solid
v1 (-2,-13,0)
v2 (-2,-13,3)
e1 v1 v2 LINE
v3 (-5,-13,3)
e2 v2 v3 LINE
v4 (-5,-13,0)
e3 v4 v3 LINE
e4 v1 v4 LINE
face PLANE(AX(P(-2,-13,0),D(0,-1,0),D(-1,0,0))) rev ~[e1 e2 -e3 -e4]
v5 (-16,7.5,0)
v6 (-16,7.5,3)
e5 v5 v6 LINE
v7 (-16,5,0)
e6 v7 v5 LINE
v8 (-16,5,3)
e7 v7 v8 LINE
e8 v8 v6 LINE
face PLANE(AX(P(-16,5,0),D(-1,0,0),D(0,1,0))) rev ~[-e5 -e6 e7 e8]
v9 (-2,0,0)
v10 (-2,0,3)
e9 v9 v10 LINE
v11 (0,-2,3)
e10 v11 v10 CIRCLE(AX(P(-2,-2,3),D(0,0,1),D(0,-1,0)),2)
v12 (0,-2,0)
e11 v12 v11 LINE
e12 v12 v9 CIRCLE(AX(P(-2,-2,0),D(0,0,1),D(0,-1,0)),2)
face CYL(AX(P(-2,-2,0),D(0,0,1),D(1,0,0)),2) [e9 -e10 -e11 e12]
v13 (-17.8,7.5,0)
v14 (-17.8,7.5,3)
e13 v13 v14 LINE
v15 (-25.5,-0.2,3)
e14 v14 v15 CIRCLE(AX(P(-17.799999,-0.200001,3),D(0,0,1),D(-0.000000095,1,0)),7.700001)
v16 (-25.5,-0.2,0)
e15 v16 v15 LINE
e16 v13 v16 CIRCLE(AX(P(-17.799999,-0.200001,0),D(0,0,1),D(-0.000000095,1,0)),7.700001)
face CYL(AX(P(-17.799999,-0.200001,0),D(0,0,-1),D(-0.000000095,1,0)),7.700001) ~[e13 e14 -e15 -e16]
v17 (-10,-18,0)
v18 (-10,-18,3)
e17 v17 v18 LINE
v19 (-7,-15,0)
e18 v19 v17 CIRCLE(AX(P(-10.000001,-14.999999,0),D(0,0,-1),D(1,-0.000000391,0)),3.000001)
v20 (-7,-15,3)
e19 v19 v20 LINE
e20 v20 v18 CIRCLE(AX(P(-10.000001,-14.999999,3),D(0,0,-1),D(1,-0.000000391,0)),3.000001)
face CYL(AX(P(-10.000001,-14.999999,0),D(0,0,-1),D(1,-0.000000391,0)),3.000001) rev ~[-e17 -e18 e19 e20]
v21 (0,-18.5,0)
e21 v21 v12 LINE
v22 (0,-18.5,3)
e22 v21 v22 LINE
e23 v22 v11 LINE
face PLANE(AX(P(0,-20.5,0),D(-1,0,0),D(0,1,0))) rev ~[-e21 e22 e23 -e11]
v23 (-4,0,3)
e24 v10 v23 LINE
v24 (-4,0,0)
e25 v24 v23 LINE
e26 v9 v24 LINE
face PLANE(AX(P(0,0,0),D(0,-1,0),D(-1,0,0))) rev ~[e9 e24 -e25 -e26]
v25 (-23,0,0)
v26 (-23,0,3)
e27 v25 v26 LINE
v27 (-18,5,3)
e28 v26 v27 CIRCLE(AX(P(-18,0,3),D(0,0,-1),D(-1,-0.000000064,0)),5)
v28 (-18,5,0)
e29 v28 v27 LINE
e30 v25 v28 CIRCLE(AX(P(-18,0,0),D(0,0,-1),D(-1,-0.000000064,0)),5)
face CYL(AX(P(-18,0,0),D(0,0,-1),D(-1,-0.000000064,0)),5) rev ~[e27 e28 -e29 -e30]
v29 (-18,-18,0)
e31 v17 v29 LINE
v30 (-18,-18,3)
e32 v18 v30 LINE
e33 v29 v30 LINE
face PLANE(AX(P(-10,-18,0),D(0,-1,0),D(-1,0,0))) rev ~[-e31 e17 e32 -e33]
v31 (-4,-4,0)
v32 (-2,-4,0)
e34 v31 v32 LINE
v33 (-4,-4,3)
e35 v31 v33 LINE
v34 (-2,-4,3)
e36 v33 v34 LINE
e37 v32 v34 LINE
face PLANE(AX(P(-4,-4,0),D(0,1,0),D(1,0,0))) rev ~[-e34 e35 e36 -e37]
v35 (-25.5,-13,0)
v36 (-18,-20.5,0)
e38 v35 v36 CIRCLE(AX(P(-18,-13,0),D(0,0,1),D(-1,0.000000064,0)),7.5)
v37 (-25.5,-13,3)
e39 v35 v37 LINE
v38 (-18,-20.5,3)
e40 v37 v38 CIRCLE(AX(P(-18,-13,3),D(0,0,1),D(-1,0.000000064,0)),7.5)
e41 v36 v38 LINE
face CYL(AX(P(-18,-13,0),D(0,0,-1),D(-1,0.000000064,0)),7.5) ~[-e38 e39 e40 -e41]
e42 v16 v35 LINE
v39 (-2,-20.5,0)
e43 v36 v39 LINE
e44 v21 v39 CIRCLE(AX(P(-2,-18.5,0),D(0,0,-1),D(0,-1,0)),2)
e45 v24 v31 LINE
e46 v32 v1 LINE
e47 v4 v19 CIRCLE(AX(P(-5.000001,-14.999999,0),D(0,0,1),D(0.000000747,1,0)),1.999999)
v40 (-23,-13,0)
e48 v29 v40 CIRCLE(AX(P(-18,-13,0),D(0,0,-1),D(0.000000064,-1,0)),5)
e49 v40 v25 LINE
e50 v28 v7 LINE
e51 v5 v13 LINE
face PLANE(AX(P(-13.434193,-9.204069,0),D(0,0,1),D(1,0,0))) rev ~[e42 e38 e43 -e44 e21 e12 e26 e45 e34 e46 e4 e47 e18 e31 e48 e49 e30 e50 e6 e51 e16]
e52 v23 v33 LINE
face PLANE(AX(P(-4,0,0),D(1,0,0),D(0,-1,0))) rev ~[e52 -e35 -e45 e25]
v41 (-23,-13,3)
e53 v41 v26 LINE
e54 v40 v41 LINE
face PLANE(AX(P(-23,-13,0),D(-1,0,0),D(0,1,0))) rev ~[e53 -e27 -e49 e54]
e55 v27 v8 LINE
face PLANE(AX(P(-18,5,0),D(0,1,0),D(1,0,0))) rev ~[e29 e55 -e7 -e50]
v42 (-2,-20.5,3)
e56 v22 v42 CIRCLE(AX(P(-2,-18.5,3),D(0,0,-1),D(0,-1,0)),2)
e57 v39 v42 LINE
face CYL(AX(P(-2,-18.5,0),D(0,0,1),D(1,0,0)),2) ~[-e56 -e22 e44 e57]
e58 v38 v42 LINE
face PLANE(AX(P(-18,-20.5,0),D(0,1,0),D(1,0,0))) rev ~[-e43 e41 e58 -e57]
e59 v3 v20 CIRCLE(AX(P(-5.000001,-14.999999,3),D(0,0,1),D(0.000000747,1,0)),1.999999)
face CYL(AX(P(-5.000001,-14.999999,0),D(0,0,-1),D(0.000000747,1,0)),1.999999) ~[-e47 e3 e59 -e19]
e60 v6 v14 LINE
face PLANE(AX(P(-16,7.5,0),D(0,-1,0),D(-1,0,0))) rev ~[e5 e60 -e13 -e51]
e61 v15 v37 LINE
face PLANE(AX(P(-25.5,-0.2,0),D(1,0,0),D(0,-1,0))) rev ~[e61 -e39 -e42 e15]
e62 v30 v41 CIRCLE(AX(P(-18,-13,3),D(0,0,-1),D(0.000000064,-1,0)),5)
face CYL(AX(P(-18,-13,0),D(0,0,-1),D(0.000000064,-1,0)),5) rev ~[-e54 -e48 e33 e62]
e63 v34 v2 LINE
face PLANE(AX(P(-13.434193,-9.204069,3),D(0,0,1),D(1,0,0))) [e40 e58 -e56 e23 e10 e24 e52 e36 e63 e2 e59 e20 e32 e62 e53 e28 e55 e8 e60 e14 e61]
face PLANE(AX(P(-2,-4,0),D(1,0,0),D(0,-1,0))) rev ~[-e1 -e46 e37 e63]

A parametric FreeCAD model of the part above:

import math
import FreeCAD as App
import Part
import Sketcher
from FreeCAD import Vector
Q = App.Units.Quantity


def edges_at(feature, points):
    """Names of the edges that pass closest to the given points."""
    edges = feature.Shape.Edges
    near = lambda p: min(range(len(edges)), key=lambda i: edges[i].distToShape(Part.Vertex(*p))[0])
    return sorted({f"Edge{near(p) + 1}" for p in points})

doc = App.newDocument("Part")
body = doc.addObject("PartDesign::Body", "Body")

# Sketch on XY plane
sketch1 = body.newObject("Sketcher::SketchObject", "Sketch")
sketch1.AttachmentSupport = (doc.getObject("XY_Plane"), [""])
sketch1.MapMode = "FlatFace"
sketch1.addGeometry(Part.LineSegment(Vector(0, -20.5, 0), Vector(0, 0, 0)), False)
sketch1.addGeometry(Part.LineSegment(Vector(0, 0, 0), Vector(-4, 0, 0)), False)
sketch1.addGeometry(Part.LineSegment(Vector(-4, 0, 0), Vector(-4, -4, 0)), False)
sketch1.addGeometry(Part.LineSegment(Vector(-4, -4, 0), Vector(-2, -4, 0)), False)
sketch1.addGeometry(Part.LineSegment(Vector(-2, -4, 0), Vector(-2, -13, 0)), False)
sketch1.addGeometry(Part.LineSegment(Vector(-2, -13, 0), Vector(-5, -13, 0)), False)
sketch1.addGeometry(Part.ArcOfCircle(Part.Circle(Vector(-5, -15, 0), Vector(0, 0, 1), 2), math.radians(90), math.radians(180)), False)
sketch1.addGeometry(Part.ArcOfCircle(Part.Circle(Vector(-10, -15, 0), Vector(0, 0, 1), 3), math.radians(-90), math.radians(0)), False)
sketch1.addGeometry(Part.LineSegment(Vector(-10, -18, 0), Vector(-18, -18, 0)), False)
sketch1.addGeometry(Part.ArcOfCircle(Part.Circle(Vector(-18, -13, 0), Vector(0, 0, 1), 5), math.radians(180), math.radians(270)), False)
sketch1.addGeometry(Part.LineSegment(Vector(-23, -13, 0), Vector(-23, 0, 0)), False)
sketch1.addGeometry(Part.ArcOfCircle(Part.Circle(Vector(-18, 0, 0), Vector(0, 0, 1), 5), math.radians(90), math.radians(180)), False)
sketch1.addGeometry(Part.LineSegment(Vector(-18, 5, 0), Vector(-16, 5, 0)), False)
sketch1.addGeometry(Part.LineSegment(Vector(-16, 5, 0), Vector(-16, 7.5, 0)), False)
sketch1.addGeometry(Part.LineSegment(Vector(-16, 7.5, 0), Vector(-17.8, 7.5, 0)), False)
sketch1.addGeometry(Part.ArcOfCircle(Part.Circle(Vector(-17.8, -0.2, 0), Vector(0, 0, 1), 7.7), math.radians(90), math.radians(180)), False)
sketch1.addGeometry(Part.LineSegment(Vector(-25.5, -0.2, 0), Vector(-25.5, -13, 0)), False)
sketch1.addGeometry(Part.ArcOfCircle(Part.Circle(Vector(-18, -13, 0), Vector(0, 0, 1), 7.5), math.radians(180), math.radians(270)), False)
sketch1.addGeometry(Part.LineSegment(Vector(-18, -20.5, 0), Vector(0, -20.5, 0)), False)
sketch1.addConstraint(Sketcher.Constraint("Coincident", 0, 2, 1, 1))
sketch1.addConstraint(Sketcher.Constraint("Coincident", 1, 2, 2, 1))
sketch1.addConstraint(Sketcher.Constraint("Coincident", 2, 2, 3, 1))
sketch1.addConstraint(Sketcher.Constraint("Coincident", 3, 2, 4, 1))
sketch1.addConstraint(Sketcher.Constraint("Coincident", 4, 2, 5, 1))
sketch1.addConstraint(Sketcher.Constraint("Tangent", 5, 2, 6, 1))
sketch1.addConstraint(Sketcher.Constraint("Tangent", 6, 2, 7, 2))
sketch1.addConstraint(Sketcher.Constraint("Tangent", 7, 1, 8, 1))
sketch1.addConstraint(Sketcher.Constraint("Tangent", 8, 2, 9, 2))
sketch1.addConstraint(Sketcher.Constraint("Tangent", 9, 1, 10, 1))
sketch1.addConstraint(Sketcher.Constraint("Tangent", 10, 2, 11, 2))
sketch1.addConstraint(Sketcher.Constraint("Tangent", 11, 1, 12, 1))
sketch1.addConstraint(Sketcher.Constraint("Coincident", 12, 2, 13, 1))
sketch1.addConstraint(Sketcher.Constraint("Coincident", 13, 2, 14, 1))
sketch1.addConstraint(Sketcher.Constraint("Tangent", 14, 2, 15, 1))
sketch1.addConstraint(Sketcher.Constraint("Tangent", 15, 2, 16, 1))
sketch1.addConstraint(Sketcher.Constraint("Tangent", 16, 2, 17, 1))
sketch1.addConstraint(Sketcher.Constraint("Tangent", 17, 2, 18, 1))
sketch1.addConstraint(Sketcher.Constraint("Coincident", 18, 2, 0, 1))
sketch1.addConstraint(Sketcher.Constraint("Vertical", 0))
sketch1.addConstraint(Sketcher.Constraint("Horizontal", 1))
sketch1.addConstraint(Sketcher.Constraint("Vertical", 2))
sketch1.addConstraint(Sketcher.Constraint("Horizontal", 3))
sketch1.addConstraint(Sketcher.Constraint("Vertical", 4))
sketch1.addConstraint(Sketcher.Constraint("Horizontal", 5))
sketch1.addConstraint(Sketcher.Constraint("Horizontal", 8))
sketch1.addConstraint(Sketcher.Constraint("Vertical", 10))
sketch1.addConstraint(Sketcher.Constraint("Horizontal", 12))
sketch1.addConstraint(Sketcher.Constraint("Vertical", 13))
sketch1.addConstraint(Sketcher.Constraint("Horizontal", 14))
sketch1.addConstraint(Sketcher.Constraint("Vertical", 16))
sketch1.addConstraint(Sketcher.Constraint("Horizontal", 18))
sketch1.addConstraint(Sketcher.Constraint("Coincident", 0, 2, -1, 1))
sketch1.addConstraint(Sketcher.Constraint("Coincident", 17, 3, 9, 3))
sketch1.addConstraint(Sketcher.Constraint("Equal", 9, 11))
sketch1.addConstraint(Sketcher.Constraint("PointOnObject", 11, 3, -1))
sketch1.addConstraint(Sketcher.Constraint("Horizontal", 6, 3, 7, 3))
sketch1.addConstraint(Sketcher.Constraint("Horizontal", 17, 3, 4, 2))
sketch1.addConstraint(Sketcher.Constraint("Equal", 3, 12))
sketch1.addConstraint(Sketcher.Constraint("Equal", 1, 2))
sketch1.addConstraint(Sketcher.Constraint("Radius", 6, Q("1.999999 mm")))
sketch1.addConstraint(Sketcher.Constraint("Radius", 7, Q("3.000001 mm")))
sketch1.addConstraint(Sketcher.Constraint("Radius", 15, Q("7.700001 mm")))
sketch1.addConstraint(Sketcher.Constraint("Radius", 17, Q("7.5 mm")))
sketch1.addConstraint(Sketcher.Constraint("DistanceX", 1, 2, 1, 1, Q("4 mm")))
sketch1.addConstraint(Sketcher.Constraint("DistanceX", 3, 1, 3, 2, Q("2 mm")))
sketch1.addConstraint(Sketcher.Constraint("DistanceX", 5, 2, 5, 1, Q("3 mm")))
sketch1.addConstraint(Sketcher.Constraint("DistanceX", 8, 2, 8, 1, Q("8 mm")))
sketch1.addConstraint(Sketcher.Constraint("DistanceY", 4, 2, 4, 1, Q("9 mm")))
sketch1.addConstraint(Sketcher.Constraint("DistanceY", 13, 1, 13, 2, Q("2.5 mm")))
pad1 = body.newObject("PartDesign::Pad", "Pad")
pad1.Profile = sketch1
pad1.Length = 3
doc.recompute()

fillet = body.newObject("PartDesign::Fillet", "Fillet")
fillet.Base = (pad1, edges_at(pad1, [
    (-25.5, -13, 1.5),
    (-25.5, -0.2, 1.5),
    (0, 0, 1.5),
    (0, -20.5, 1.5),
    (-18, -20.5, 1.5),
]))
fillet.Radius = 2

doc.recompute()
